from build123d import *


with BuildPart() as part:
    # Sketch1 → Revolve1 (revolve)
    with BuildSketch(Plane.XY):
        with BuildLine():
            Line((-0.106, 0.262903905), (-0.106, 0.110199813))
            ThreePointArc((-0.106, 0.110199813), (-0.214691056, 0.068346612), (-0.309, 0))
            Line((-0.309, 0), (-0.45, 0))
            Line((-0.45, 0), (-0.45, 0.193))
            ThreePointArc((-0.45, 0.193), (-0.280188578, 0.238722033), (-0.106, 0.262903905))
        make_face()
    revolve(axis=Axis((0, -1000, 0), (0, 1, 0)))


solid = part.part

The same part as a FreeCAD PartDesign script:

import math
import FreeCAD as App
import Part
import Sketcher

V = App.Vector

doc = App.newDocument("Part")
body = doc.addObject("PartDesign::Body", "Body")

sketch1 = body.newObject("Sketcher::SketchObject", "Sketch")
sketch1.AttachmentSupport = (doc.getObject("XY_Plane"), [""])
sketch1.MapMode = "FlatFace"
sketch1.addGeometry([
    Part.LineSegment(V(-0.11, 0.11, 0), V(-0.11, 0.26, 0)),
    Part.ArcOfCircle(Part.Circle(V(0, -1.14, 0), V(0, 0, 1), 1.41), math.radians(94.32), math.radians(108.65)),
    Part.LineSegment(V(-0.45, 0.19, 0), V(-0.45, 0, 0)),
    Part.LineSegment(V(-0.45, 0, 0), V(-0.31, 0, 0)),
    Part.ArcOfCircle(Part.Circle(V(0, -0.33, 0), V(0, 0, 1), 0.45), math.radians(104), math.radians(133)),
], False)
sketch1.addConstraint([
    Sketcher.Constraint("Coincident", 0, 2, 1, 1),
    Sketcher.Constraint("Coincident", 1, 2, 2, 1),
    Sketcher.Constraint("Coincident", 2, 2, 3, 1),
    Sketcher.Constraint("Coincident", 3, 2, 4, 2),
    Sketcher.Constraint("Coincident", 4, 1, 0, 1),
    Sketcher.Constraint("Vertical", 0),
    Sketcher.Constraint("Vertical", 2),
    Sketcher.Constraint("Horizontal", 3),
    Sketcher.Constraint("PointOnObject", 1, 3, -2),
    Sketcher.Constraint("PointOnObject", 4, 3, -2),
    Sketcher.Constraint("PointOnObject", 2, 2, -1),
    Sketcher.Constraint("Radius", 4, 0.45),
    Sketcher.Constraint("Radius", 1, 1.407),
    Sketcher.Constraint("DistanceX", 3, 1, 3, 2, 0.141),
    Sketcher.Constraint("DistanceY", 2, 2, 2, 1, 0.193),
    Sketcher.Constraint("DistanceX", 1, 2, -1, 1, 0.45),
    Sketcher.Constraint("DistanceX", 0, 2, -1, 1, 0.106),
])
revolution = body.newObject("PartDesign::Revolution", "Revolution")
revolution.Profile = sketch1
revolution.ReferenceAxis = (sketch1, ["V_Axis"])
revolution.Angle = 360

doc.recompute()
